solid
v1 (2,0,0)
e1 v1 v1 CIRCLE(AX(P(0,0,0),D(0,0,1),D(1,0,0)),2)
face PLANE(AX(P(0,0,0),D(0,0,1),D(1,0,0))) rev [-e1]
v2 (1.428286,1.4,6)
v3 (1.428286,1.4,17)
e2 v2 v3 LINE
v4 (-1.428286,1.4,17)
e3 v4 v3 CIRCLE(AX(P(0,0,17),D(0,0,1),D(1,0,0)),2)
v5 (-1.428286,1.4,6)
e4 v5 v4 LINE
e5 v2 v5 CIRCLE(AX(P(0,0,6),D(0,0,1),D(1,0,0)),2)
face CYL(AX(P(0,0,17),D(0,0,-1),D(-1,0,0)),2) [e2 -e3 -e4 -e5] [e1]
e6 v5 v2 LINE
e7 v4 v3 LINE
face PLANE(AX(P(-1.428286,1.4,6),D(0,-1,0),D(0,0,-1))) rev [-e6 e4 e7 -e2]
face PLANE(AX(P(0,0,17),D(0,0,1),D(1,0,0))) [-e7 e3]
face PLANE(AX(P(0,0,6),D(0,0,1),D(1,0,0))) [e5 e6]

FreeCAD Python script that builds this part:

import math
import FreeCAD as App
import Part
import Sketcher
from FreeCAD import Vector
Q = App.Units.Quantity

doc = App.newDocument("Part")
body = doc.addObject("PartDesign::Body", "Body")

sketch1 = doc.addObject("Sketcher::SketchObject", "Sketch")
body.addObject(sketch1)
sketch1.AttachmentSupport = (doc.XY_Plane, [""])
sketch1.MapMode = "FlatFace"
sketch1.addGeometry(Part.Circle(Vector(0, 0, 0), Vector(0, 0, 1), 2), False)
sketch1.addConstraint([
    Sketcher.Constraint("Coincident", 0, 3, -1, 1),
    Sketcher.Constraint("Diameter", 0, Q("4 mm")),
])
pad1 = doc.addObject("PartDesign::Pad", "Pad")
body.addObject(pad1)
pad1.Profile = sketch1
pad1.Length = 17

sketch2 = doc.addObject("Sketcher::SketchObject", "Sketch001")
body.addObject(sketch2)
sketch2.AttachmentSupport = (doc.XY_Plane, [""])
sketch2.MapMode = "FlatFace"
sketch2.AttachmentOffset = App.Placement(Vector(0, 0, 6), App.Rotation())
sketch2.addGeometry([
    Part.LineSegment(Vector(-1.4, 1.4, 0), Vector(1.4, 1.4, 0)),
    Part.ArcOfCircle(Part.Circle(Vector(0, 0, 0), Vector(0, 0, 1), 2), math.radians(44), math.radians(136)),
], False)
sketch2.addConstraint([
    Sketcher.Constraint("Coincident", 0, 1, 1, 2),
    Sketcher.Constraint("Coincident", 1, 1, 0, 2),
    Sketcher.Constraint("Horizontal", 0),
    Sketcher.Constraint("Coincident", 1, 3, -1, 1),
    Sketcher.Constraint("Radius", 1, Q("2 mm")),
    Sketcher.Constraint("DistanceY", -1, 1, 0, 1, Q("1.4 mm")),
])
pocket1 = doc.addObject("PartDesign::Pocket", "Pocket")
body.addObject(pocket1)
pocket1.Profile = sketch2
pocket1.Length = 11
pocket1.Reversed = True

doc.recompute()
